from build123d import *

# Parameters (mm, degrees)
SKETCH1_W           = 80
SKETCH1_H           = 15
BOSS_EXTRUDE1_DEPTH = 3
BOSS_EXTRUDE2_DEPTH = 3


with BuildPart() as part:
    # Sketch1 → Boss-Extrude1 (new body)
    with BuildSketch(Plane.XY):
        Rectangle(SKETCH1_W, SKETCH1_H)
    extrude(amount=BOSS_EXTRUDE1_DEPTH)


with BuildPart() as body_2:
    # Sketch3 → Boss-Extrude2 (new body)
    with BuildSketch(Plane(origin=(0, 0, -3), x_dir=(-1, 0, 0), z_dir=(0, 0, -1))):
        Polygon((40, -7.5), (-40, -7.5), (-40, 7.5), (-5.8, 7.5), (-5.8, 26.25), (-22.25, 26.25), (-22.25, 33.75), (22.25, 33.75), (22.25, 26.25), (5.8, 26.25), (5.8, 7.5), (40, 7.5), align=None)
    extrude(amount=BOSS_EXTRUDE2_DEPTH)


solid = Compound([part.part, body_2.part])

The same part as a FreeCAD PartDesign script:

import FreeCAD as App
import Part
import Sketcher

doc = App.newDocument("Part")
params = doc.addObject("Spreadsheet::Sheet", "Params")
for row, (alias, value) in enumerate([
    ("sketch1_width", "80 mm"),
    ("sketch1_height", "15 mm"),
    ("pad1_length", "3 mm"),
    ("sketch2_width", "80 mm"),
    ("sketch2_height", "15 mm"),
    ("sketch2_width2", "34.2 mm"),
    ("sketch2_width3", "44.5 mm"),
    ("sketch2_height2", "7.5 mm"),
    ("pad2_length", "3 mm"),
], start=1):
    params.set(f"A{row}", alias)
    params.set(f"B{row}", "=" + value)
    params.setAlias(f"B{row}", alias)

body = doc.addObject("PartDesign::Body", "Body")

sketch1 = body.newObject("Sketcher::SketchObject", "Sketch")
sketch1.AttachmentSupport = (doc.getObject("XY_Plane"), [""])
sketch1.MapMode = "FlatFace"
sketch1.addGeometry(Part.LineSegment(App.Vector(-40, 8, 0), App.Vector(-40, -8, 0)), False)
sketch1.addGeometry(Part.LineSegment(App.Vector(-40, -8, 0), App.Vector(40, -8, 0)), False)
sketch1.addGeometry(Part.LineSegment(App.Vector(40, -8, 0), App.Vector(40, 8, 0)), False)
sketch1.addGeometry(Part.LineSegment(App.Vector(40, 8, 0), App.Vector(-40, 8, 0)), False)
sketch1.addConstraint(Sketcher.Constraint("Coincident", 0, 2, 1, 1))
sketch1.addConstraint(Sketcher.Constraint("Coincident", 1, 2, 2, 1))
sketch1.addConstraint(Sketcher.Constraint("Coincident", 2, 2, 3, 1))
sketch1.addConstraint(Sketcher.Constraint("Coincident", 3, 2, 0, 1))
sketch1.addConstraint(Sketcher.Constraint("Vertical", 0))
sketch1.addConstraint(Sketcher.Constraint("Horizontal", 1))
sketch1.addConstraint(Sketcher.Constraint("Vertical", 2))
sketch1.addConstraint(Sketcher.Constraint("Horizontal", 3))
sketch1.addConstraint(Sketcher.Constraint("Symmetric", 0, 2, 2, 2, -1, 1))
sketch1.addConstraint(Sketcher.Constraint("DistanceX", 1, 1, 1, 2, 80.0))
sketch1.addConstraint(Sketcher.Constraint("DistanceY", 0, 2, 0, 1, 15.0))
sketch1.setExpression("Constraints[9]", "Params.sketch1_width")
sketch1.setExpression("Constraints[10]", "Params.sketch1_height")
pad1 = body.newObject("PartDesign::Pad", "Pad")
pad1.Profile = sketch1
pad1.setExpression("Length", "Params.pad1_length")
body2 = doc.addObject("PartDesign::Body", "Body001")

sketch2 = body2.newObject("Sketcher::SketchObject", "Sketch001")
sketch2.AttachmentSupport = (doc.getObject("XY_Plane001"), [""])
sketch2.MapMode = "FlatFace"
sketch2.AttachmentOffset = App.Placement(App.Vector(0, 0, -3), App.Rotation())
sketch2.addGeometry(Part.LineSegment(App.Vector(40, -8, 0), App.Vector(-40, -8, 0)), False)
sketch2.addGeometry(Part.LineSegment(App.Vector(-40, -8, 0), App.Vector(-40, 8, 0)), False)
sketch2.addGeometry(Part.LineSegment(App.Vector(-40, 8, 0), App.Vector(-6, 8, 0)), False)
sketch2.addGeometry(Part.LineSegment(App.Vector(-6, 8, 0), App.Vector(-6, 26, 0)), False)
sketch2.addGeometry(Part.LineSegment(App.Vector(-6, 26, 0), App.Vector(-22, 26, 0)), False)
sketch2.addGeometry(Part.LineSegment(App.Vector(-22, 26, 0), App.Vector(-22, 34, 0)), False)
sketch2.addGeometry(Part.LineSegment(App.Vector(-22, 34, 0), App.Vector(22, 34, 0)), False)
sketch2.addGeometry(Part.LineSegment(App.Vector(22, 34, 0), App.Vector(22, 26, 0)), False)
sketch2.addGeometry(Part.LineSegment(App.Vector(22, 26, 0), App.Vector(6, 26, 0)), False)
sketch2.addGeometry(Part.LineSegment(App.Vector(6, 26, 0), App.Vector(6, 8, 0)), False)
sketch2.addGeometry(Part.LineSegment(App.Vector(6, 8, 0), App.Vector(40, 8, 0)), False)
sketch2.addGeometry(Part.LineSegment(App.Vector(40, 8, 0), App.Vector(40, -8, 0)), False)
sketch2.addConstraint(Sketcher.Constraint("Coincident", 0, 2, 1, 1))
sketch2.addConstraint(Sketcher.Constraint("Coincident", 1, 2, 2, 1))
sketch2.addConstraint(Sketcher.Constraint("Coincident", 2, 2, 3, 1))
sketch2.addConstraint(Sketcher.Constraint("Coincident", 3, 2, 4, 1))
sketch2.addConstraint(Sketcher.Constraint("Coincident", 4, 2, 5, 1))
sketch2.addConstraint(Sketcher.Constraint("Coincident", 5, 2, 6, 1))
sketch2.addConstraint(Sketcher.Constraint("Coincident", 6, 2, 7, 1))
sketch2.addConstraint(Sketcher.Constraint("Coincident", 7, 2, 8, 1))
sketch2.addConstraint(Sketcher.Constraint("Coincident", 8, 2, 9, 1))
sketch2.addConstraint(Sketcher.Constraint("Coincident", 9, 2, 10, 1))
sketch2.addConstraint(Sketcher.Constraint("Coincident", 10, 2, 11, 1))
sketch2.addConstraint(Sketcher.Constraint("Coincident", 11, 2, 0, 1))
sketch2.addConstraint(Sketcher.Constraint("Horizontal", 0))
sketch2.addConstraint(Sketcher.Constraint("Vertical", 1))
sketch2.addConstraint(Sketcher.Constraint("Horizontal", 2))
sketch2.addConstraint(Sketcher.Constraint("Vertical", 3))
sketch2.addConstraint(Sketcher.Constraint("Horizontal", 4))
sketch2.addConstraint(Sketcher.Constraint("Vertical", 5))
sketch2.addConstraint(Sketcher.Constraint("Horizontal", 6))
sketch2.addConstraint(Sketcher.Constraint("Vertical", 7))
sketch2.addConstraint(Sketcher.Constraint("Horizontal", 8))
sketch2.addConstraint(Sketcher.Constraint("Vertical", 9))
sketch2.addConstraint(Sketcher.Constraint("Horizontal", 10))
sketch2.addConstraint(Sketcher.Constraint("Vertical", 11))
sketch2.addConstraint(Sketcher.Constraint("Symmetric", 0, 2, 10, 2, -1, 1))
sketch2.addConstraint(Sketcher.Constraint("Symmetric", 4, 2, 7, 2, -2))
sketch2.addConstraint(Sketcher.Constraint("Symmetric", 2, 2, 9, 2, -2))
sketch2.addConstraint(Sketcher.Constraint("DistanceX", 0, 2, 0, 1, 80.0))
sketch2.addConstraint(Sketcher.Constraint("DistanceY", 1, 1, 1, 2, 15.0))
sketch2.addConstraint(Sketcher.Constraint("DistanceX", 2, 1, 2, 2, 34.2))
sketch2.addConstraint(Sketcher.Constraint("DistanceX", 6, 1, 6, 2, 44.5))
sketch2.addConstraint(Sketcher.Constraint("DistanceY", 5, 1, 5, 2, 7.5))
sketch2.addConstraint(Sketcher.Constraint("DistanceY", 3, 1, 3, 2, 18.75))
sketch2.setExpression("Constraints[27]", "Params.sketch2_width")
sketch2.setExpression("Constraints[28]", "Params.sketch2_height")
sketch2.setExpression("Constraints[29]", "Params.sketch2_width2")
sketch2.setExpression("Constraints[30]", "Params.sketch2_width3")
sketch2.setExpression("Constraints[31]", "Params.sketch2_height2")
pad2 = body2.newObject("PartDesign::Pad", "Pad001")
pad2.Profile = sketch2
pad2.setExpression("Length", "Params.pad2_length")
pad2.Reversed = True

doc.recompute()
